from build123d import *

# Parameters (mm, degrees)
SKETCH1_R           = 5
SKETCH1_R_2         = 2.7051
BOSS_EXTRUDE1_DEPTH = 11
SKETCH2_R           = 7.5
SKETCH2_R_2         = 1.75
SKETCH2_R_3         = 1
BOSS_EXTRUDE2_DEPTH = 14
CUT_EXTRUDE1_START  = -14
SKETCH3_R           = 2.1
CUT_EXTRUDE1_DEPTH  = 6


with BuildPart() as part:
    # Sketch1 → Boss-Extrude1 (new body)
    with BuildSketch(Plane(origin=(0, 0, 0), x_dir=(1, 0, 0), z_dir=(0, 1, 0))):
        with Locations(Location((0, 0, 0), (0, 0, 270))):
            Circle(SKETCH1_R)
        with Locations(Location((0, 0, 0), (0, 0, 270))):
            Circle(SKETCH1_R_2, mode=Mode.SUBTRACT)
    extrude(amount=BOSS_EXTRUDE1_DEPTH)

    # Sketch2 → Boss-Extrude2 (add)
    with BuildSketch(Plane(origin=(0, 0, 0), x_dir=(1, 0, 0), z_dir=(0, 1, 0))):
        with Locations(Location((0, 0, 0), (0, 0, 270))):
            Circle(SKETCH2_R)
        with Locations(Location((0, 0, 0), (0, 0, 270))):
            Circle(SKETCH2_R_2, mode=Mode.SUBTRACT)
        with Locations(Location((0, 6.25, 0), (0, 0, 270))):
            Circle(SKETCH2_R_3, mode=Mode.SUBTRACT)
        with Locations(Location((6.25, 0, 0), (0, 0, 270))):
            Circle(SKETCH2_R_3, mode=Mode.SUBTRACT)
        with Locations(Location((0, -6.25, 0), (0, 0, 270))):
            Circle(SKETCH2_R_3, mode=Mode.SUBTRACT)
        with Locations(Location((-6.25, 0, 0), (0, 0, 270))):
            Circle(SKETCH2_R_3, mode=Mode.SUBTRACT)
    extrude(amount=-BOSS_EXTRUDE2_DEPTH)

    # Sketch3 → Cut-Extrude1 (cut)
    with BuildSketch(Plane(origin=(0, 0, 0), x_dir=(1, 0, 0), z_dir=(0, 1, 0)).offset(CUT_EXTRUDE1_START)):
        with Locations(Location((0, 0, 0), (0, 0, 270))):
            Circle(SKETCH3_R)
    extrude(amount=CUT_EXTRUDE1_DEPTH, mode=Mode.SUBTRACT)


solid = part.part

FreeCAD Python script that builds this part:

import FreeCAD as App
import Part
import Sketcher

doc = App.newDocument("Part")
params = doc.addObject("Spreadsheet::Sheet", "Params")
for row, (alias, value) in enumerate([
    ("sketch1_diameter", "10 mm"),
    ("pad1_length", "11 mm"),
    ("sketch2_diameter", "15 mm"),
    ("sketch2_diameter2", "2 mm"),
    ("sketch2_diameter3", "3.5 mm"),
    ("pad2_length", "14 mm"),
    ("sketch3_diameter", "4.2 mm"),
    ("pocket1_length", "6 mm"),
], start=1):
    params.set(f"A{row}", alias)
    params.set(f"B{row}", "=" + value)
    params.setAlias(f"B{row}", alias)

body = doc.addObject("PartDesign::Body", "Body")

# Sketch on XZ plane
sketch1 = doc.addObject("Sketcher::SketchObject", "Sketch")
body.addObject(sketch1)
sketch1.AttachmentSupport = (doc.XZ_Plane, [""])
sketch1.MapMode = "FlatFace"
sketch1.addGeometry([
    Part.Circle(App.Vector(0, 0, 0), App.Vector(0, 0, 1), 5),
    Part.Circle(App.Vector(0, 0, 0), App.Vector(0, 0, 1), 2.7),
], False)
sketch1.addConstraint([
    Sketcher.Constraint("Coincident", 0, 3, -1, 1),
    Sketcher.Constraint("Coincident", 1, 3, -1, 1),
    Sketcher.Constraint("Diameter", 0, 10.0),
    Sketcher.Constraint("Diameter", 1, 5.4102),
])
sketch1.setExpression("Constraints[2]", "Params.sketch1_diameter")
pad1 = doc.addObject("PartDesign::Pad", "Pad")
body.addObject(pad1)
pad1.Profile = sketch1
pad1.setExpression("Length", "Params.pad1_length")
pad1.Reversed = True

# Sketch on XZ plane
sketch2 = doc.addObject("Sketcher::SketchObject", "Sketch001")
body.addObject(sketch2)
sketch2.AttachmentSupport = (doc.XZ_Plane, [""])
sketch2.MapMode = "FlatFace"
sketch2.addGeometry([
    Part.Circle(App.Vector(0, 0, 0), App.Vector(0, 0, 1), 7.5),  # 0
    Part.Circle(App.Vector(0, -6.2, 0), App.Vector(0, 0, 1), 1),  # 1
    Part.Circle(App.Vector(-6.2, 0, 0), App.Vector(0, 0, 1), 1),  # 2
    Part.Circle(App.Vector(6.2, 0, 0), App.Vector(0, 0, 1), 1),  # 3
    Part.Circle(App.Vector(0, 0, 0), App.Vector(0, 0, 1), 1.8),  # 4
    Part.Circle(App.Vector(0, 6.2, 0), App.Vector(0, 0, 1), 1),  # 5
], False)
sketch2.addConstraint([
    Sketcher.Constraint("Coincident", 0, 3, -1, 1),
    Sketcher.Constraint("Coincident", 4, 3, -1, 1),
    Sketcher.Constraint("Equal", 1, 2),
    Sketcher.Constraint("Equal", 2, 3),
    Sketcher.Constraint("Equal", 3, 5),
    Sketcher.Constraint("Symmetric", 2, 3, 3, 3, -1, 1),
    Sketcher.Constraint("Symmetric", 1, 3, 5, 3, -1, 1),
    Sketcher.Constraint("PointOnObject", 1, 3, -2),
    Sketcher.Constraint("PointOnObject", 2, 3, -1),
    Sketcher.Constraint("Diameter", 0, 15.0),
    Sketcher.Constraint("Diameter", 1, 2.0),
    Sketcher.Constraint("Diameter", 4, 3.5),
    Sketcher.Constraint("DistanceX", 2, 3, 3, 3, 12.5),
    Sketcher.Constraint("DistanceY", 1, 3, 5, 3, 12.5),
])
sketch2.setExpression("Constraints[9]", "Params.sketch2_diameter")
sketch2.setExpression("Constraints[10]", "Params.sketch2_diameter2")
sketch2.setExpression("Constraints[11]", "Params.sketch2_diameter3")
pad2 = doc.addObject("PartDesign::Pad", "Pad001")
body.addObject(pad2)
pad2.Profile = sketch2
pad2.setExpression("Length", "Params.pad2_length")

# Sketch on XZ plane
sketch3 = doc.addObject("Sketcher::SketchObject", "Sketch002")
body.addObject(sketch3)
sketch3.AttachmentSupport = (doc.XZ_Plane, [""])
sketch3.MapMode = "FlatFace"
sketch3.AttachmentOffset = App.Placement(App.Vector(0, 0, 14), App.Rotation())
sketch3.addGeometry(Part.Circle(App.Vector(0, 0, 0), App.Vector(0, 0, 1), 2.1), False)
sketch3.addConstraint([
    Sketcher.Constraint("Coincident", 0, 3, -1, 1),
    Sketcher.Constraint("Diameter", 0, 4.2),
])
sketch3.setExpression("Constraints[1]", "Params.sketch3_diameter")
pocket1 = doc.addObject("PartDesign::Pocket", "Pocket")
body.addObject(pocket1)
pocket1.Profile = sketch3
pocket1.setExpression("Length", "Params.pocket1_length")

doc.recompute()
